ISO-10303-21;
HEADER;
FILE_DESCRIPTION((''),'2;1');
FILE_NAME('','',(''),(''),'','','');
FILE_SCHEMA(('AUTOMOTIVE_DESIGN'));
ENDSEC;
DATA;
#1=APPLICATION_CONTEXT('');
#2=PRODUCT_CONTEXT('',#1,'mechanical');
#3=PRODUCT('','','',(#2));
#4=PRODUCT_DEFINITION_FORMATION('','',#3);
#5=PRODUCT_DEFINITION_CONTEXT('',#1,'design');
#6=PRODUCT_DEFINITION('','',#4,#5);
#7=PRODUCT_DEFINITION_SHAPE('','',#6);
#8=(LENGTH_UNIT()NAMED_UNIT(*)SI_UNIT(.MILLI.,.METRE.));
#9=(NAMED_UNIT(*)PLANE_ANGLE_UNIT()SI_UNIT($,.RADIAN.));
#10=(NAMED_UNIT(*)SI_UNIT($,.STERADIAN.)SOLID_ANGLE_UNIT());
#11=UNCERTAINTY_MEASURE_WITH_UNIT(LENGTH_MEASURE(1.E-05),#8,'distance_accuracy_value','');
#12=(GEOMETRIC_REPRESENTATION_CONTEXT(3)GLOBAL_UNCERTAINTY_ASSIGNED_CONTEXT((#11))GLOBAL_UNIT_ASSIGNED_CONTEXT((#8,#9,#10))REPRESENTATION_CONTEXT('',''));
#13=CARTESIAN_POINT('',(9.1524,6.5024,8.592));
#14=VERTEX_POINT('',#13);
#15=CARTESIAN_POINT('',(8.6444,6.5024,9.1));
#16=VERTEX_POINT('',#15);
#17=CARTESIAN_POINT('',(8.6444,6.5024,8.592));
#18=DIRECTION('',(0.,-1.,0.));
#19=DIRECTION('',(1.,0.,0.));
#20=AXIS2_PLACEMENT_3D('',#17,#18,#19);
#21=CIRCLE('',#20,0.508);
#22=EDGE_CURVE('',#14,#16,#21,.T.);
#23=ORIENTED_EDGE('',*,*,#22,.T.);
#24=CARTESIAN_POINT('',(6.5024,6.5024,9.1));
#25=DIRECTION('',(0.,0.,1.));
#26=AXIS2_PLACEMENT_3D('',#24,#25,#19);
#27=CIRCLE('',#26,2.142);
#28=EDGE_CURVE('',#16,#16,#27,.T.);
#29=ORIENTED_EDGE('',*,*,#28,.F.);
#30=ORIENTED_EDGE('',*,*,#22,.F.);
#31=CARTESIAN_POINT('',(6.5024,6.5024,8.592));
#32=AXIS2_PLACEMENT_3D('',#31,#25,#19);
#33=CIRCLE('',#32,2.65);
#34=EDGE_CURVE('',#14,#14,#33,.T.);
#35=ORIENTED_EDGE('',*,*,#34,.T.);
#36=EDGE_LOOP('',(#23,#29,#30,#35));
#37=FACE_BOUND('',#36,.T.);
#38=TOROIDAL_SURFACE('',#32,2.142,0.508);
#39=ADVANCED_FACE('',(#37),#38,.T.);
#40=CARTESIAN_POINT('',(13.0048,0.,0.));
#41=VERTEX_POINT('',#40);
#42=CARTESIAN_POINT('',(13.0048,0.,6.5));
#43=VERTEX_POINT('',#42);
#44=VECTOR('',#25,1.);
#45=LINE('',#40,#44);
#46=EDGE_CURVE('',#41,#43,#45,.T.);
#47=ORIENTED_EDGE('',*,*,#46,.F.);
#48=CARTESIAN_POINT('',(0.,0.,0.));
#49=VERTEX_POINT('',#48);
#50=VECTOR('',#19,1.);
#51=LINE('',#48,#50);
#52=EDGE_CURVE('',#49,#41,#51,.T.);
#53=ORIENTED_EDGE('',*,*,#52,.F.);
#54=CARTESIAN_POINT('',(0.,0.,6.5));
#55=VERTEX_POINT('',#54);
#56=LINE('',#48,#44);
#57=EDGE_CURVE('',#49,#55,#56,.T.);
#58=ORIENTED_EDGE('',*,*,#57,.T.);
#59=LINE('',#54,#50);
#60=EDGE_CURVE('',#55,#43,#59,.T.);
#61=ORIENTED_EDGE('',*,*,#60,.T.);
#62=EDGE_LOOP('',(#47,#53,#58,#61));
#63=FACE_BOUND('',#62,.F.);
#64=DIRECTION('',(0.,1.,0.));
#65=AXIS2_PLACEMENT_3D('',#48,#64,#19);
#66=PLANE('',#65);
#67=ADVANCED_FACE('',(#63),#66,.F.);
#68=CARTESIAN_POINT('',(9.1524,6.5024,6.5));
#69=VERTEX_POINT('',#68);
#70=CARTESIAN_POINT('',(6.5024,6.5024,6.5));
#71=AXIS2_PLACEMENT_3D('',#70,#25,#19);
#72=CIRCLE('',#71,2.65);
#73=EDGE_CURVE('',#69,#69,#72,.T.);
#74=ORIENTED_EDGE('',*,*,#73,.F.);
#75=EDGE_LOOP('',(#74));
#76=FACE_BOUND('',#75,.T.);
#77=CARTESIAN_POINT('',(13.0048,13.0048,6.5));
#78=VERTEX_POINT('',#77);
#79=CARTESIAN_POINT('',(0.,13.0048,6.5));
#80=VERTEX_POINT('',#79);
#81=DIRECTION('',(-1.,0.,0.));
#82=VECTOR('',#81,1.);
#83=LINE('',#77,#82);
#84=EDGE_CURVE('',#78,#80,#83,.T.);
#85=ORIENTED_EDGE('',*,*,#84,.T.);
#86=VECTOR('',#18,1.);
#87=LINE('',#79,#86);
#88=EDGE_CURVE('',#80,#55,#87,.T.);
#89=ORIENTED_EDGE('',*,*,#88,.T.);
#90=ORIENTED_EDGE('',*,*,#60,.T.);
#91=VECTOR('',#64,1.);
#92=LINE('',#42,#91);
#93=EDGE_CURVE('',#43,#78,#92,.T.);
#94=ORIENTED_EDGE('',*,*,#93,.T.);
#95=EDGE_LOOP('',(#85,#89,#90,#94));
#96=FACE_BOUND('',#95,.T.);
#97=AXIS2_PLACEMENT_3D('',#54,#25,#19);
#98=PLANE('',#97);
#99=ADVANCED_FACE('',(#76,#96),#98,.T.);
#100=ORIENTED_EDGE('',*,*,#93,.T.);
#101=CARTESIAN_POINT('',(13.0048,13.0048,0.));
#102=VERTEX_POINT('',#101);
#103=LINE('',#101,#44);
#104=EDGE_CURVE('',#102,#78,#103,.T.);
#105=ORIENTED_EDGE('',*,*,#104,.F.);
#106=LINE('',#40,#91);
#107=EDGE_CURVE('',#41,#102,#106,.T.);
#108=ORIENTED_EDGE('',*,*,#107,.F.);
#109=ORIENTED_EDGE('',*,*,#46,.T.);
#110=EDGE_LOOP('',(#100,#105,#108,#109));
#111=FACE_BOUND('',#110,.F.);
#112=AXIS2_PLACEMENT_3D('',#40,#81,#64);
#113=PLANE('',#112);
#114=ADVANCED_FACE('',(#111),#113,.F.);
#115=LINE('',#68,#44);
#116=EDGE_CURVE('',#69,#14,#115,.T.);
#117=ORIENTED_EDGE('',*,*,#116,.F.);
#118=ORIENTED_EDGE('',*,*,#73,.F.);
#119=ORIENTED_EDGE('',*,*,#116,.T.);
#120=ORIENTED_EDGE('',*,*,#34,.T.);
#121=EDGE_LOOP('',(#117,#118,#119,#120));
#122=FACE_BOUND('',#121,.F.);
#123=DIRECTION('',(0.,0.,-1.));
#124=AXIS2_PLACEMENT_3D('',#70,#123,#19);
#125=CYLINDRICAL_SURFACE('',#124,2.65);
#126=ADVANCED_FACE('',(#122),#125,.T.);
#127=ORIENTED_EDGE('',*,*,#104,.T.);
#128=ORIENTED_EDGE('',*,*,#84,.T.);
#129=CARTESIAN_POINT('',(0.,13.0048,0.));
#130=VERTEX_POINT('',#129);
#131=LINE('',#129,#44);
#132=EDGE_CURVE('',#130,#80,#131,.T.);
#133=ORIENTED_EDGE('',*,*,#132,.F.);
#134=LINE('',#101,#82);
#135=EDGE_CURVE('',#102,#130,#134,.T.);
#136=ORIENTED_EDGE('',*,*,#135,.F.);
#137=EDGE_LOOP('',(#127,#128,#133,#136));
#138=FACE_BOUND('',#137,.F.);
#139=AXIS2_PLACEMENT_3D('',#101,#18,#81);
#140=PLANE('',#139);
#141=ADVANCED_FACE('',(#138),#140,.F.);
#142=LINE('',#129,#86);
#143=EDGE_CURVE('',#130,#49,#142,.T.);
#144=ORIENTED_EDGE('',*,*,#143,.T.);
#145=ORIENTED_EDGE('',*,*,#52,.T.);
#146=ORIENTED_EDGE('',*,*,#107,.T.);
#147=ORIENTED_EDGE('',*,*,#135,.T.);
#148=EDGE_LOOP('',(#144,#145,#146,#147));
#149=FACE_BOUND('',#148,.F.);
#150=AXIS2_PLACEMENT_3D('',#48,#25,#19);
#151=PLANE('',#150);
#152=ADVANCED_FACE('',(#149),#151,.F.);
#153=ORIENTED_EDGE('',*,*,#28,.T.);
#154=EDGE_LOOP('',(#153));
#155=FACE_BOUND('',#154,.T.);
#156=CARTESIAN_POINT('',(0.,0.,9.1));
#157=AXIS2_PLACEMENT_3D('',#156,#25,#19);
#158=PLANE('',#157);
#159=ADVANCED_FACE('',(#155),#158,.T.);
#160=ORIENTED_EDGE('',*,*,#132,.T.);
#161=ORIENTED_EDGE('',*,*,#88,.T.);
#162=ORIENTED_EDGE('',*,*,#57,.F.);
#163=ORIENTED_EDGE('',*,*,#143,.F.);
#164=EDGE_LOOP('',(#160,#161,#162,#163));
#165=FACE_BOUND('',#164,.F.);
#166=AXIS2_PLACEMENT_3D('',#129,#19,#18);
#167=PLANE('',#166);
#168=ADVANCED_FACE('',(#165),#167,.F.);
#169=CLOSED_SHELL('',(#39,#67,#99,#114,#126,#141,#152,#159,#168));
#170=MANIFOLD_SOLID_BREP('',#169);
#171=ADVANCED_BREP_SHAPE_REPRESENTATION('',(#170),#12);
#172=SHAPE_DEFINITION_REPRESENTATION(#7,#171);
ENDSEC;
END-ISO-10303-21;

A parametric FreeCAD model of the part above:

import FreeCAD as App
import Part
import Sketcher

V = App.Vector
Q = App.Units.Quantity


def edges_at(feature, points):
    """Names of the edges that pass closest to the given points."""
    edges = feature.Shape.Edges
    near = lambda p: min(range(len(edges)), key=lambda i: edges[i].distToShape(Part.Vertex(*p))[0])
    return sorted({f"Edge{near(p) + 1}" for p in points})


def add_polygon(sketch, points):
    """Adds a closed chain of lines whose ends are joined by coincident constraints."""
    first, n = sketch.GeometryCount, len(points)
    for a, b in zip(points, points[1:] + points[:1]):
        sketch.addGeometry(Part.LineSegment(App.Vector(*a, 0), App.Vector(*b, 0)), False)
    for i in range(n):
        sketch.addConstraint(Sketcher.Constraint("Coincident", first + i, 2, first + (i + 1) % n, 1))

doc = App.newDocument("Part")
params = doc.addObject("Spreadsheet::Sheet", "Params")
for row, (alias, value) in enumerate([
    ("pad1_length", "6.5 mm"),
    ("sketch2_diameter", "5.3 mm"),
    ("pad2_length", "2.6 mm"),
    ("fillet_radius", "0.508 mm"),
], start=1):
    params.set(f"A{row}", alias)
    params.set(f"B{row}", "=" + value)
    params.setAlias(f"B{row}", alias)

body = doc.addObject("PartDesign::Body", "Body")

sketch1 = body.newObject("Sketcher::SketchObject", "Sketch")
sketch1.AttachmentSupport = (doc.getObject("XY_Plane"), [""])
sketch1.MapMode = "FlatFace"
add_polygon(sketch1, [(0, 13), (0, 0), (13, 0), (13, 13)])
sketch1.addConstraint([
    Sketcher.Constraint("Vertical", 0),
    Sketcher.Constraint("Horizontal", 1),
    Sketcher.Constraint("Vertical", 2),
    Sketcher.Constraint("Horizontal", 3),
    Sketcher.Constraint("Coincident", 0, 2, -1, 1),
    Sketcher.Constraint("Equal", 3, 0),
    Sketcher.Constraint("DistanceX", 1, 1, 1, 2, Q("13.0048 mm")),
])
pad1 = body.newObject("PartDesign::Pad", "Pad")
pad1.Profile = sketch1
pad1.setExpression("Length", "Params.pad1_length")

sketch2 = body.newObject("Sketcher::SketchObject", "Sketch001")
sketch2.AttachmentSupport = (doc.getObject("XY_Plane"), [""])
sketch2.MapMode = "FlatFace"
sketch2.AttachmentOffset = App.Placement(V(0, 0, 6.5), App.Rotation())
sketch2.addGeometry(Part.Circle(V(6.5, 6.5, 0), V(0, 0, 1), 2.6), False)
sketch2.addConstraint([
    Sketcher.Constraint("Diameter", 0, Q("5.3 mm")),
    Sketcher.Constraint("DistanceX", -1, 1, 0, 3, Q("6.5024 mm")),
    Sketcher.Constraint("DistanceY", -1, 1, 0, 3, Q("6.5024 mm")),
])
sketch2.setExpression("Constraints[0]", "Params.sketch2_diameter")
pad2 = body.newObject("PartDesign::Pad", "Pad001")
pad2.Profile = sketch2
pad2.setExpression("Length", "Params.pad2_length")
doc.recompute()

fillet = body.newObject("PartDesign::Fillet", "Fillet")
fillet.Base = (pad2, edges_at(pad2, [(3.852, 6.502, 9.1)]))
fillet.setExpression("Radius", "Params.fillet_radius")

doc.recompute()
